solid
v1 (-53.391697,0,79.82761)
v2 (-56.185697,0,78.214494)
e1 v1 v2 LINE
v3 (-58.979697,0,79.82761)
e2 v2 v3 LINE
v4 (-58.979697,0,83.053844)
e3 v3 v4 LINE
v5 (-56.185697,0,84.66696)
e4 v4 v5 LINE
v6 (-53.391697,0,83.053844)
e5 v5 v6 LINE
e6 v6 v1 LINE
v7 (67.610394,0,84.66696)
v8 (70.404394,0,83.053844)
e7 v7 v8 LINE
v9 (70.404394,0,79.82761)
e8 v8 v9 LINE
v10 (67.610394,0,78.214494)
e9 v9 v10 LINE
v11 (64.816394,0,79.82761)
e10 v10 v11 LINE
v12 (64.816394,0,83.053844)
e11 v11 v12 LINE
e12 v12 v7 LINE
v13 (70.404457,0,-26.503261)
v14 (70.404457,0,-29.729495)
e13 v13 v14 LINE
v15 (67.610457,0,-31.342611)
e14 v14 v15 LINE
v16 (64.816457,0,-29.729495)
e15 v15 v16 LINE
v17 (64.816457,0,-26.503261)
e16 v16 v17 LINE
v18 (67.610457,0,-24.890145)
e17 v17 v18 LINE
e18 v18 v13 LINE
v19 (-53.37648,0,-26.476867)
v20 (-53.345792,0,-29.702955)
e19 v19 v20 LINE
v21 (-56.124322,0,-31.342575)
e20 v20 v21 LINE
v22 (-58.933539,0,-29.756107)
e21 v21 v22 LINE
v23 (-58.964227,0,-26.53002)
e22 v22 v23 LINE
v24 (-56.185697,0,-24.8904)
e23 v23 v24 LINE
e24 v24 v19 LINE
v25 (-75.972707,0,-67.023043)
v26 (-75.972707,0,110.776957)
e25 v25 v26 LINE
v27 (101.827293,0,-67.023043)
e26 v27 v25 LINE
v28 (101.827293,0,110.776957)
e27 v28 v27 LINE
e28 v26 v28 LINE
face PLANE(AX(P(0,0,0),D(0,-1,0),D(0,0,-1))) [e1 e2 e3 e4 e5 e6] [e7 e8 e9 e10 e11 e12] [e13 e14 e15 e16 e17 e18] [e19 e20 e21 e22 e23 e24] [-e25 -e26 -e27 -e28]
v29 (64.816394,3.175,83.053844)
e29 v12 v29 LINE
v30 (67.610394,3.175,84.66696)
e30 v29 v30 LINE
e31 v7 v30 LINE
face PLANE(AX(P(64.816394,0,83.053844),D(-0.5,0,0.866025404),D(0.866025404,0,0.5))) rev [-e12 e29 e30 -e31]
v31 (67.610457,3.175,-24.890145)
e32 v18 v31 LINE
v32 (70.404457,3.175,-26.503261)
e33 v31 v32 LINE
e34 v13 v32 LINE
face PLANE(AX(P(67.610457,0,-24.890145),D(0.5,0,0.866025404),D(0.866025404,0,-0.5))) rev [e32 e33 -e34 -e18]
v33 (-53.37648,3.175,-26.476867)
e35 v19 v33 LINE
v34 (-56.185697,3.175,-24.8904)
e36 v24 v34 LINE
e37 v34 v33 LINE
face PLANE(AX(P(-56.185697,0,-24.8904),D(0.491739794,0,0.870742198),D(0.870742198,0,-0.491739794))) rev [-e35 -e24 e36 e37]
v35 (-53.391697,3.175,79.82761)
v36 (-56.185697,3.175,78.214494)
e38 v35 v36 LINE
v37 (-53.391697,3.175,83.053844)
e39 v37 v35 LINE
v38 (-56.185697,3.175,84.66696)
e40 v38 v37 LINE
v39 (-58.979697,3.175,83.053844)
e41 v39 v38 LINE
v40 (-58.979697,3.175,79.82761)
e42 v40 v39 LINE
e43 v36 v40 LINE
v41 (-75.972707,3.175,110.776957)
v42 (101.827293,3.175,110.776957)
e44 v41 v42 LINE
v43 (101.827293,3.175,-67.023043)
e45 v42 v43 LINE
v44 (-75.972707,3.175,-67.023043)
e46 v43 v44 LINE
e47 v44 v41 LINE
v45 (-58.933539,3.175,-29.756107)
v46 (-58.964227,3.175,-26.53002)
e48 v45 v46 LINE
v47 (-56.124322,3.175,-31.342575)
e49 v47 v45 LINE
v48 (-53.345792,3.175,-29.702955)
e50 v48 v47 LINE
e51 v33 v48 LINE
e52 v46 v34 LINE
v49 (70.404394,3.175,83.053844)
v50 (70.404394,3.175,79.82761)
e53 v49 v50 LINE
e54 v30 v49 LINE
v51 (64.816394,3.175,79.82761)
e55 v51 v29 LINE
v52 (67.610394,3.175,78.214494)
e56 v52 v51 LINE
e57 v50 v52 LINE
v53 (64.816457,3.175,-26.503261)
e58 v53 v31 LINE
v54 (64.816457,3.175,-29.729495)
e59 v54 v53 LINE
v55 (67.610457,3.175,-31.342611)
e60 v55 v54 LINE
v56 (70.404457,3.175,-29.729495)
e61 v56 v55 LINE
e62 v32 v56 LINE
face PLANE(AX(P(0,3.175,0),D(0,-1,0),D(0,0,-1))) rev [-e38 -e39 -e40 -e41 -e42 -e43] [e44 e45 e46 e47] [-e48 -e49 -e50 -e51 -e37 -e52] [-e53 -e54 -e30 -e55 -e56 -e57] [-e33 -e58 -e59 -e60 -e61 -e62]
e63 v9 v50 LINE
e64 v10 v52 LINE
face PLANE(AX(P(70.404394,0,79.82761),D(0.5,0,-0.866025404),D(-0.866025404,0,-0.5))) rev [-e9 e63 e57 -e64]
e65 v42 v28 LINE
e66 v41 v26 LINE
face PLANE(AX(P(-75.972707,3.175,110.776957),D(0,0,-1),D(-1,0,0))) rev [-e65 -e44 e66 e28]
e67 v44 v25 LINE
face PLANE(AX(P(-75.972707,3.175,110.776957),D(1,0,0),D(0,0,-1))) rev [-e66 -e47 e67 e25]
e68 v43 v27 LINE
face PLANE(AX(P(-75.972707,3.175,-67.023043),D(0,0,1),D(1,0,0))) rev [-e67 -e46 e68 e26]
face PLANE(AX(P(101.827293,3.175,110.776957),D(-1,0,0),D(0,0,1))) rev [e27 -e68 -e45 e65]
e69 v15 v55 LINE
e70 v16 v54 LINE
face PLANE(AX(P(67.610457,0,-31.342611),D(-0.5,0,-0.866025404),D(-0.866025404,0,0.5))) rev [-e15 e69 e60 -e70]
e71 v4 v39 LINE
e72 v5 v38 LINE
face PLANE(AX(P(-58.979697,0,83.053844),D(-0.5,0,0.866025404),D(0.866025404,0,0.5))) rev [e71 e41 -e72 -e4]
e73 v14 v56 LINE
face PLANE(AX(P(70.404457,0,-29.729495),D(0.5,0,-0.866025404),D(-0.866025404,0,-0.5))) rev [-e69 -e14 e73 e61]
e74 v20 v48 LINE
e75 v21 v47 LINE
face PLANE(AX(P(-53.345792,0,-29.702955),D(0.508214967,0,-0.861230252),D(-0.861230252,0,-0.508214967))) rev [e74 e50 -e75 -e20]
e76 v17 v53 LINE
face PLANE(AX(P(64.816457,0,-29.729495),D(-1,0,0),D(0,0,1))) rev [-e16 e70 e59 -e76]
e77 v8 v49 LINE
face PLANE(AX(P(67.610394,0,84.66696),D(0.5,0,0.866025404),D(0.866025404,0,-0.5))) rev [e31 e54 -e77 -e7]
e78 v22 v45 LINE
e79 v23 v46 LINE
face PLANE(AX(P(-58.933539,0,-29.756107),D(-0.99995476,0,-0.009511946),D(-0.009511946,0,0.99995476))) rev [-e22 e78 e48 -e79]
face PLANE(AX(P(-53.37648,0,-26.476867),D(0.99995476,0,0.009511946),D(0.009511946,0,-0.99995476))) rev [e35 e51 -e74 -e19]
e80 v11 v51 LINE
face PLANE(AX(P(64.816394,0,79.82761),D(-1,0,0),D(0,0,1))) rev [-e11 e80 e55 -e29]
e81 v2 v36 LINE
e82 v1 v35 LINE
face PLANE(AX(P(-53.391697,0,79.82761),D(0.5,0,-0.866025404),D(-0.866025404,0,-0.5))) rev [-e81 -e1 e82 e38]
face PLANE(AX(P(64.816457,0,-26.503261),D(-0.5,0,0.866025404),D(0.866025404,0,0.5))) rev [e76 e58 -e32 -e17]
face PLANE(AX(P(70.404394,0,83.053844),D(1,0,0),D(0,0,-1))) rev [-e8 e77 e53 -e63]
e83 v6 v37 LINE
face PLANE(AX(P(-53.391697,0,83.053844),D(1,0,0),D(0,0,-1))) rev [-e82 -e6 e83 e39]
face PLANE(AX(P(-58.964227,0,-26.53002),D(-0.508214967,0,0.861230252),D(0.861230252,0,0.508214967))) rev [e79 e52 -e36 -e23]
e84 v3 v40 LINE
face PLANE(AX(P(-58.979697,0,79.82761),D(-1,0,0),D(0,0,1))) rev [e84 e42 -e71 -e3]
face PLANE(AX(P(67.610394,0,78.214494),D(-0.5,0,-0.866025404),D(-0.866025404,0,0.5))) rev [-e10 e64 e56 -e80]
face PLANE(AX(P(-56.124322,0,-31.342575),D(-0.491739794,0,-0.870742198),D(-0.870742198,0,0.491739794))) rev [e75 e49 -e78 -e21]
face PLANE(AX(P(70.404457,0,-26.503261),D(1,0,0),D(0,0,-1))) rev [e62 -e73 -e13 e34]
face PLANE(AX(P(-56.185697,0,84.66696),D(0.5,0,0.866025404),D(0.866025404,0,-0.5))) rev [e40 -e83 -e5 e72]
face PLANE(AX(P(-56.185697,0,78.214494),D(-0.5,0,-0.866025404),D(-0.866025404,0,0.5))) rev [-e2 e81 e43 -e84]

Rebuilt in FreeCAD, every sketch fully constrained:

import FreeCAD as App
import Part
import Sketcher
Q = App.Units.Quantity


def add_polygon(sketch, points):
    """Adds a closed chain of lines whose ends are joined by coincident constraints."""
    first, n = sketch.GeometryCount, len(points)
    for a, b in zip(points, points[1:] + points[:1]):
        sketch.addGeometry(Part.LineSegment(App.Vector(*a, 0), App.Vector(*b, 0)), False)
    for i in range(n):
        sketch.addConstraint(Sketcher.Constraint("Coincident", first + i, 2, first + (i + 1) % n, 1))

doc = App.newDocument("Part")
body = doc.addObject("PartDesign::Body", "Body")

# Sketch on XZ plane
sketch1 = body.newObject("Sketcher::SketchObject", "Sketch")
sketch1.AttachmentSupport = (doc.getObject("XZ_Plane"), [""])
sketch1.MapMode = "FlatFace"
add_polygon(sketch1, [(-76, -67), (-76, 111), (102, 111), (102, -67)])  # lines 0-3
sketch1.addConstraint([
    Sketcher.Constraint("Vertical", 0),
    Sketcher.Constraint("Horizontal", 1),
    Sketcher.Constraint("Vertical", 2),
    Sketcher.Constraint("Horizontal", 3),
    Sketcher.Constraint("Equal", 3, 0),
    Sketcher.Constraint("DistanceX", 1, 1, 1, 2, Q("7 in")),
    Sketcher.Constraint("DistanceX", 0, 2, -1, 1, Q("75.972707 mm")),
    Sketcher.Constraint("DistanceY", -1, 1, 0, 2, Q("110.776957 mm")),
])
pad1 = body.newObject("PartDesign::Pad", "Pad")
pad1.Profile = sketch1
pad1.Length = Q("0.125 in")
pad1.Reversed = True

# Sketch on XZ plane
sketch2 = body.newObject("Sketcher::SketchObject", "Sketch001")
sketch2.AttachmentSupport = (doc.getObject("XZ_Plane"), [""])
sketch2.MapMode = "FlatFace"
sketch2.AttachmentOffset = App.Placement(App.Vector(0, 0, -0.125 * 25.4), App.Rotation())
add_polygon(sketch2, [(-58.9, -29.8), (-59, -26.5), (-56.2, -24.9), (-53.4, -26.5), (-53.3, -29.7), (-56.1, -31.3)])  # lines 0-5
add_polygon(sketch2, [(67.6, -31.3), (64.8, -29.7), (64.8, -26.5), (67.6, -24.9), (70.4, -26.5), (70.4, -29.7)])  # lines 6-11
add_polygon(sketch2, [(-56.2, 78.2), (-59, 79.8), (-59, 83.1), (-56.2, 84.7), (-53.4, 83.1), (-53.4, 79.8)])  # lines 12-17
add_polygon(sketch2, [(67.6, 78.2), (64.8, 79.8), (64.8, 83.1), (67.6, 84.7), (70.4, 83.1), (70.4, 79.8)])  # lines 18-23
sketch2.addConstraint([
    Sketcher.Constraint("Vertical", 7),
    Sketcher.Constraint("Vertical", 10),
    Sketcher.Constraint("Vertical", 13),
    Sketcher.Constraint("Vertical", 16),
    Sketcher.Constraint("Vertical", 19),
    Sketcher.Constraint("Vertical", 22),
    Sketcher.Constraint("Parallel", 0, 3),
    Sketcher.Constraint("Parallel", 1, 4),
    Sketcher.Constraint("Parallel", 2, 5),
    Sketcher.Constraint("Parallel", 6, 9),
    Sketcher.Constraint("Parallel", 8, 11),
    Sketcher.Constraint("Parallel", 9, 12),
    Sketcher.Constraint("Parallel", 11, 14),
    Sketcher.Constraint("Parallel", 12, 15),
    Sketcher.Constraint("Parallel", 14, 17),
    Sketcher.Constraint("Parallel", 15, 18),
    Sketcher.Constraint("Parallel", 17, 20),
    Sketcher.Constraint("Parallel", 18, 21),
    Sketcher.Constraint("Parallel", 20, 23),
    Sketcher.Constraint("Horizontal", 7, 2, 9, 2),
    Sketcher.Constraint("Horizontal", 6, 2, 10, 2),
    Sketcher.Constraint("Horizontal", 13, 2, 15, 2),
    Sketcher.Constraint("Horizontal", 12, 2, 16, 2),
    Sketcher.Constraint("Horizontal", 16, 2, 18, 2),
    Sketcher.Constraint("Horizontal", 15, 2, 19, 2),
    Sketcher.Constraint("Horizontal", 14, 2, 20, 2),
    Sketcher.Constraint("Horizontal", 19, 2, 21, 2),
    Sketcher.Constraint("Horizontal", 18, 2, 22, 2),
    Sketcher.Constraint("Vertical", 8, 2, 11, 2),
    Sketcher.Constraint("Vertical", 1, 2, 14, 2),
    Sketcher.Constraint("Equal", 10, 13),
    Sketcher.Constraint("Equal", 0, 1),
    Sketcher.Constraint("Equal", 1, 2),
    Sketcher.Constraint("Equal", 2, 3),
    Sketcher.Constraint("Equal", 5, 6),
    Sketcher.Constraint("Equal", 11, 12),
    Sketcher.Constraint("Angle", 6, Q("150 deg")),
    Sketcher.Constraint("DistanceX", 7, 2, 8, 2, Q("0.11 in")),
    Sketcher.Constraint("DistanceY", 1, 2, -1, 1, Q("24.8904 mm")),
    Sketcher.Constraint("DistanceY", 7, 1, 7, 2, Q("3.226233 mm")),
    Sketcher.Constraint("DistanceY", 0, 2, -1, 1, Q("26.53002 mm")),
    Sketcher.Constraint("DistanceX", 2, 2, -1, 1, Q("53.37648 mm")),
    Sketcher.Constraint("DistanceX", 3, 2, -1, 1, Q("53.345792 mm")),
    Sketcher.Constraint("DistanceX", 5, 2, -1, 1, Q("58.933539 mm")),
    Sketcher.Constraint("DistanceY", 7, 2, -1, 1, Q("26.503261 mm")),
    Sketcher.Constraint("DistanceY", -1, 1, 12, 2, Q("79.82761 mm")),
    Sketcher.Constraint("DistanceX", 3, 2, 6, 2, Q("118.162249 mm")),
    Sketcher.Constraint("DistanceX", -1, 1, 18, 2, Q("64.816394 mm")),
])
pocket1 = body.newObject("PartDesign::Pocket", "Pocket")
pocket1.Profile = sketch2
pocket1.Length = Q("0.125 in")
pocket1.Reversed = True

doc.recompute()
